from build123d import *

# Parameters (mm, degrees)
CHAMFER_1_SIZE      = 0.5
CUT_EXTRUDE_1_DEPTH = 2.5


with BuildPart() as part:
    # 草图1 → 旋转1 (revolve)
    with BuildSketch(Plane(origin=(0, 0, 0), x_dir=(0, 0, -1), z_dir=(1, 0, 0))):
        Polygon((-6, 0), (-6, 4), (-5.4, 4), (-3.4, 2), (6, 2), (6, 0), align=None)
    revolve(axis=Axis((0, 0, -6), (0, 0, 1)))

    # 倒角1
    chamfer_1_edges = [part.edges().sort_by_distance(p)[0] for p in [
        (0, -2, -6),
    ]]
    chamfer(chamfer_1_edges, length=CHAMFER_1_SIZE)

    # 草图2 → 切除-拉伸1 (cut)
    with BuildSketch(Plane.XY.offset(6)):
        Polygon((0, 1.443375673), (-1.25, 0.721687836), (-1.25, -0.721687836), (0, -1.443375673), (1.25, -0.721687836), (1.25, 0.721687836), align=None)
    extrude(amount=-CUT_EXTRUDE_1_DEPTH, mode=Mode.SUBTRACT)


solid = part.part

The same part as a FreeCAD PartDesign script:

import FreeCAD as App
import Part
import Sketcher
from FreeCAD import Vector
Q = App.Units.Quantity


def edges_at(feature, points):
    """Names of the edges that pass closest to the given points."""
    edges = feature.Shape.Edges
    near = lambda p: min(range(len(edges)), key=lambda i: edges[i].distToShape(Part.Vertex(*p))[0])
    return sorted({f"Edge{near(p) + 1}" for p in points})

doc = App.newDocument("Part")
body = doc.addObject("PartDesign::Body", "Body")

sketch1 = body.newObject("Sketcher::SketchObject", "Sketch")
sketch1.AttachmentSupport = (doc.getObject("YZ_Plane"), [""])
sketch1.MapMode = "FlatFace"
sketch1.addGeometry([
    Part.LineSegment(Vector(4, 6, 0), Vector(0, 6, 0)),
    Part.LineSegment(Vector(0, 6, 0), Vector(0, -6, 0)),
    Part.LineSegment(Vector(0, -6, 0), Vector(2, -6, 0)),
    Part.LineSegment(Vector(2, -6, 0), Vector(2, 3.4, 0)),
    Part.LineSegment(Vector(2, 3.4, 0), Vector(4, 5.4, 0)),
    Part.LineSegment(Vector(4, 5.4, 0), Vector(4, 6, 0)),
], False)
sketch1.addConstraint([
    Sketcher.Constraint("Coincident", 0, 2, 1, 1),
    Sketcher.Constraint("Coincident", 1, 2, 2, 1),
    Sketcher.Constraint("Coincident", 2, 2, 3, 1),
    Sketcher.Constraint("Coincident", 3, 2, 4, 1),
    Sketcher.Constraint("Coincident", 4, 2, 5, 1),
    Sketcher.Constraint("Coincident", 5, 2, 0, 1),
    Sketcher.Constraint("Horizontal", 0),
    Sketcher.Constraint("Vertical", 1),
    Sketcher.Constraint("Horizontal", 2),
    Sketcher.Constraint("Vertical", 3),
    Sketcher.Constraint("Vertical", 5),
    Sketcher.Constraint("Symmetric", 0, 2, 1, 2, -1, 1),
    Sketcher.Constraint("DistanceX", 0, 2, 0, 1, 4.0),
    Sketcher.Constraint("DistanceX", 2, 1, 2, 2, 2.0),
    Sketcher.Constraint("DistanceY", 1, 2, 1, 1, 12.0),
    Sketcher.Constraint("Angle", 4, Q("45 deg")),
    Sketcher.Constraint("DistanceY", 3, 1, 3, 2, 9.4),
])
revolution = body.newObject("PartDesign::Revolution", "Revolution")
revolution.Profile = sketch1
revolution.ReferenceAxis = (sketch1, ["V_Axis"])
revolution.Angle = 360
doc.recompute()

chamfer = body.newObject("PartDesign::Chamfer", "Chamfer")
chamfer.Base = (revolution, edges_at(revolution, [(0, -2, -6)]))
chamfer.Size = 0.5

sketch2 = body.newObject("Sketcher::SketchObject", "Sketch001")
sketch2.AttachmentSupport = (doc.getObject("XY_Plane"), [""])
sketch2.MapMode = "FlatFace"
sketch2.AttachmentOffset = App.Placement(Vector(0, 0, 6), App.Rotation())
sketch2.addGeometry([
    Part.LineSegment(Vector(0, 1.443376, 0), Vector(-1.25, 0.721688, 0)),
    Part.LineSegment(Vector(-1.25, 0.721688, 0), Vector(-1.25, -0.721688, 0)),
    Part.LineSegment(Vector(-1.25, -0.721688, 0), Vector(0, -1.443376, 0)),
    Part.LineSegment(Vector(0, -1.443376, 0), Vector(1.25, -0.721688, 0)),
    Part.LineSegment(Vector(1.25, -0.721688, 0), Vector(1.25, 0.721688, 0)),
    Part.LineSegment(Vector(1.25, 0.721688, 0), Vector(0, 1.443376, 0)),
], False)
sketch2.addConstraint([
    Sketcher.Constraint("Coincident", 0, 2, 1, 1),
    Sketcher.Constraint("Coincident", 1, 2, 2, 1),
    Sketcher.Constraint("Coincident", 2, 2, 3, 1),
    Sketcher.Constraint("Coincident", 3, 2, 4, 1),
    Sketcher.Constraint("Coincident", 4, 2, 5, 1),
    Sketcher.Constraint("Coincident", 5, 2, 0, 1),
    Sketcher.Constraint("Vertical", 1),
    Sketcher.Constraint("Vertical", 4),
    Sketcher.Constraint("Symmetric", 0, 2, 3, 2, -1, 1),
    Sketcher.Constraint("Symmetric", 2, 2, 5, 2, -1, 1),
    Sketcher.Constraint("PointOnObject", 2, 2, -2),
    Sketcher.Constraint("Parallel", 2, 5),
    Sketcher.Constraint("Horizontal", 1, 2, 3, 2),
    Sketcher.Constraint("Angle", 0, Q("-150 deg")),
    Sketcher.Constraint("DistanceX", 1, 2, 3, 2, 2.5),
    Sketcher.Constraint("DistanceY", 1, 2, 1, 1, 1.443376),
])
pocket1 = body.newObject("PartDesign::Pocket", "Pocket")
pocket1.Profile = sketch2
pocket1.Length = 2.5

doc.recompute()
